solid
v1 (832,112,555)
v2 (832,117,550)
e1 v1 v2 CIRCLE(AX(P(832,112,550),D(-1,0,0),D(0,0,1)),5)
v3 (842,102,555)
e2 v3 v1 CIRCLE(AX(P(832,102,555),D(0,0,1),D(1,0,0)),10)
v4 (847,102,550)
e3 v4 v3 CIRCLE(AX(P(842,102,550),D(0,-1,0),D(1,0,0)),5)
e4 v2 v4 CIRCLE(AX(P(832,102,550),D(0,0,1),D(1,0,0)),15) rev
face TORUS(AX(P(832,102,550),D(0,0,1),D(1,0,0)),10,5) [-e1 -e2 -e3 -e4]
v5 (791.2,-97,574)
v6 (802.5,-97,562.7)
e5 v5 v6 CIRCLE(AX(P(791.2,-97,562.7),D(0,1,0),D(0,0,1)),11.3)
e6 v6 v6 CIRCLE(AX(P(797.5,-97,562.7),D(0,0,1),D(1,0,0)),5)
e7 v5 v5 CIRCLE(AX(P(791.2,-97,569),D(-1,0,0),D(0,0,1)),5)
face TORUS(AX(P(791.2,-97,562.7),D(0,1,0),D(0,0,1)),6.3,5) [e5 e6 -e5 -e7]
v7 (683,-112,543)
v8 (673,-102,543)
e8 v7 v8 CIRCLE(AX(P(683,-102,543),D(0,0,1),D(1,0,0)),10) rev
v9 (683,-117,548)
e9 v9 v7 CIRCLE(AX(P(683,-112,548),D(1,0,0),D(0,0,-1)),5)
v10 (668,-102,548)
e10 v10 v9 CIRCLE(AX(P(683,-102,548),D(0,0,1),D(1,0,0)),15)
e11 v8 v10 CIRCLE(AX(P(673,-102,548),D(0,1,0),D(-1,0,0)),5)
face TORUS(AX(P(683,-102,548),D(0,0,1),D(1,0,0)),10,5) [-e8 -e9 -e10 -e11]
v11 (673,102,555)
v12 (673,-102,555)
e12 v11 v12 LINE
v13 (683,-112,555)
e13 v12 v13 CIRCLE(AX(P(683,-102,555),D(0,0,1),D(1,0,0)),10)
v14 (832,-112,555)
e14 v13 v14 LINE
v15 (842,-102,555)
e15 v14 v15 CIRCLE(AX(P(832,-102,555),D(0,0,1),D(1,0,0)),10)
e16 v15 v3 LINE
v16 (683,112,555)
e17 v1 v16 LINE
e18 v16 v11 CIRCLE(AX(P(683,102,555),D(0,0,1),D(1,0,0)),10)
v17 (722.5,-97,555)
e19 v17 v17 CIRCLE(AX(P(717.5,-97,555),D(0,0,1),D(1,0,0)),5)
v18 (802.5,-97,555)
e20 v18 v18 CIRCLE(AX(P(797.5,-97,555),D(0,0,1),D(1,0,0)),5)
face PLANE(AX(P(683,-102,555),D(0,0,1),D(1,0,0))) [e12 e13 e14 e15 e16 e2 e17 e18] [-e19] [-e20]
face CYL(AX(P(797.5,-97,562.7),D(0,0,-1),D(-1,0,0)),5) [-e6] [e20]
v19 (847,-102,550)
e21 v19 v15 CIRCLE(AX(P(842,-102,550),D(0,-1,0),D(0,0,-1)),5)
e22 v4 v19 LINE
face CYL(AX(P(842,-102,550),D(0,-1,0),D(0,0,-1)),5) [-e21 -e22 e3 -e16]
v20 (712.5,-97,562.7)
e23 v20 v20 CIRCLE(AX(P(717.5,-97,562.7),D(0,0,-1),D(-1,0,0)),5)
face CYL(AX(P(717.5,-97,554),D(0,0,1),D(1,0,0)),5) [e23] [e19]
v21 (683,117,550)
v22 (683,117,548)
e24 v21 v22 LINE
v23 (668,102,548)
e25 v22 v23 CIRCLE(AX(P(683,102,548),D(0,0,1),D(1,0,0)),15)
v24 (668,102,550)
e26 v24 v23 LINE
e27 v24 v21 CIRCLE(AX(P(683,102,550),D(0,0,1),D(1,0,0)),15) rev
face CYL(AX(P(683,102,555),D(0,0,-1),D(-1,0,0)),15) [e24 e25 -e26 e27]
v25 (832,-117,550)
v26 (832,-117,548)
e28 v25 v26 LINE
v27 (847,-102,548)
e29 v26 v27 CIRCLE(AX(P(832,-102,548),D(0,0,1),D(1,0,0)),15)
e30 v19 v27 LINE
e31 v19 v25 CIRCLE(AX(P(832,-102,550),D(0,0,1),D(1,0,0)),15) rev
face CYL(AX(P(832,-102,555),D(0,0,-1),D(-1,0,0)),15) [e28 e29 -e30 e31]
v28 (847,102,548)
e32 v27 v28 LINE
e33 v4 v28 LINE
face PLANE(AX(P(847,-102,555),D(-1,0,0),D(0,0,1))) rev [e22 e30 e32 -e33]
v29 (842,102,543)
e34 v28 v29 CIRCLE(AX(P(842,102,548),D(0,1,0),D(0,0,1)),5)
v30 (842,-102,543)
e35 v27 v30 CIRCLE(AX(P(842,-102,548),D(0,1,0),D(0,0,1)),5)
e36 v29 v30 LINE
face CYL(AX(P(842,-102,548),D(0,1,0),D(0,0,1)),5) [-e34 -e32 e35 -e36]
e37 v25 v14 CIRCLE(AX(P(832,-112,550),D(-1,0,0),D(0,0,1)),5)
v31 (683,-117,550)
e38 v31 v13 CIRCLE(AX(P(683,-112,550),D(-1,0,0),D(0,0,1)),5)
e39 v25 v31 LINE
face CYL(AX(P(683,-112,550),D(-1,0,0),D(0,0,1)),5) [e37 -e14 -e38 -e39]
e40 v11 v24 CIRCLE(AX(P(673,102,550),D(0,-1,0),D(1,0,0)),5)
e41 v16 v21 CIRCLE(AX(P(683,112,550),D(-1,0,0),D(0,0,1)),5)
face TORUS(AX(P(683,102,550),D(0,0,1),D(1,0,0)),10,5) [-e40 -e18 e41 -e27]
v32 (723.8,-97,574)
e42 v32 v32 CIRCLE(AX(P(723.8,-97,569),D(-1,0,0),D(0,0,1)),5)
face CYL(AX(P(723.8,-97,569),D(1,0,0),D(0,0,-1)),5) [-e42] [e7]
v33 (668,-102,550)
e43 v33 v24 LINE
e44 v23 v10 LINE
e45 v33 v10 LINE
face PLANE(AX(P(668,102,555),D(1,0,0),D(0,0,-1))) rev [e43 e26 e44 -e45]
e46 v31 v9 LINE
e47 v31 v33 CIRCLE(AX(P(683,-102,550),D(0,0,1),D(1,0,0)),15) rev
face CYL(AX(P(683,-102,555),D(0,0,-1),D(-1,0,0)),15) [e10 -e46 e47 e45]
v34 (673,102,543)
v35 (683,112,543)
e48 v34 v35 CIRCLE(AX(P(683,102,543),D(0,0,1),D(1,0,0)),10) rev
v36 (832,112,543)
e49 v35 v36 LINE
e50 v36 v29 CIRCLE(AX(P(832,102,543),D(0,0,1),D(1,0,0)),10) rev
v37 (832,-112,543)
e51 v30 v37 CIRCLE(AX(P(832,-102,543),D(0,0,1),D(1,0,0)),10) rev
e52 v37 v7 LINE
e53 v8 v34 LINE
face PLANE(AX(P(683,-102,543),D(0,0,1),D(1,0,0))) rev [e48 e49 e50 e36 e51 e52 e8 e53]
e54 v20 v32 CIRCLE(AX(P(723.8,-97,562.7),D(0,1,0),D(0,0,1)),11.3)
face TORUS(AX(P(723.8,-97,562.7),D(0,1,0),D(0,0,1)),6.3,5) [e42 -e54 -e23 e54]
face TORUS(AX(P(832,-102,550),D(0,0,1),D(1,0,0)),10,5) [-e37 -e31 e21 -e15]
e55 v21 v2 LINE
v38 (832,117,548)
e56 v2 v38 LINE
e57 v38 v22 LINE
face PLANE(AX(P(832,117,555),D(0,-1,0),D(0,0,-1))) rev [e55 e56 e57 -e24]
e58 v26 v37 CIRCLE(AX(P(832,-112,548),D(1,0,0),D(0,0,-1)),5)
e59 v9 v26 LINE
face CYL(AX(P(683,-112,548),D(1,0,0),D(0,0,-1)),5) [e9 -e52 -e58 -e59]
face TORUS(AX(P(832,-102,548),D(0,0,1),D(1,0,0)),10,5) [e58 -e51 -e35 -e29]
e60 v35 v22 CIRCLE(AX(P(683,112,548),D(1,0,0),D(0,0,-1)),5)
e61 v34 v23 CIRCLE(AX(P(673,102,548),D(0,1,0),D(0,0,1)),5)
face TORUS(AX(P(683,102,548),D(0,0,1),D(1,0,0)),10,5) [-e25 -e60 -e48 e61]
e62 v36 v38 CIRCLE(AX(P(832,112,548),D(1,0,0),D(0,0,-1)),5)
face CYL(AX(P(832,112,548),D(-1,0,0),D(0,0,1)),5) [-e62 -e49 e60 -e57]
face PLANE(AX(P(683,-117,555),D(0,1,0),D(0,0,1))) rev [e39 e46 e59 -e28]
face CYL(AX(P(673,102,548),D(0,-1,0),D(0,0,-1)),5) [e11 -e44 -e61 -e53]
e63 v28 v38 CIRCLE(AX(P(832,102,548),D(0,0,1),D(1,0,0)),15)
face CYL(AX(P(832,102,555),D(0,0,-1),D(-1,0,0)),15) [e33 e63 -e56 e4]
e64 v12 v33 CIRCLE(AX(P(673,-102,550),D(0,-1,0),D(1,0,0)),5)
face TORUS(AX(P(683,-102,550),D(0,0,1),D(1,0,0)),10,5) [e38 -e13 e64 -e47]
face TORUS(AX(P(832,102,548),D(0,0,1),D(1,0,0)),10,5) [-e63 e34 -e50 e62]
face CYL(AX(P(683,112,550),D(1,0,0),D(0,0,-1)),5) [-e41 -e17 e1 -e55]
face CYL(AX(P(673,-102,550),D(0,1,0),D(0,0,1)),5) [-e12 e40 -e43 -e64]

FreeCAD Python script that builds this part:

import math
import FreeCAD as App
import Part
import Sketcher
from FreeCAD import Vector


def edges_at(feature, points):
    """Names of the edges that pass closest to the given points."""
    edges = feature.Shape.Edges
    near = lambda p: min(range(len(edges)), key=lambda i: edges[i].distToShape(Part.Vertex(*p))[0])
    return sorted({f"Edge{near(p) + 1}" for p in points})

doc = App.newDocument("Part")
body = doc.addObject("PartDesign::Body", "Body")

# Sketch on XY plane
sketch1 = body.newObject("Sketcher::SketchObject", "Sketch")
sketch1.AttachmentSupport = (doc.getObject("XY_Plane"), [""])
sketch1.MapMode = "FlatFace"
sketch1.AttachmentOffset = App.Placement(Vector(0, 0, 543), App.Rotation())
sketch1.addGeometry(Part.LineSegment(Vector(683, -117, 0), Vector(832, -117, 0)), False)
sketch1.addGeometry(Part.ArcOfCircle(Part.Circle(Vector(832, -102, 0), Vector(0, 0, 1), 15), math.radians(-90), math.radians(0)), False)
sketch1.addGeometry(Part.LineSegment(Vector(847, -102, 0), Vector(847, 102, 0)), False)
sketch1.addGeometry(Part.ArcOfCircle(Part.Circle(Vector(832, 102, 0), Vector(0, 0, 1), 15), math.radians(0), math.radians(90)), False)
sketch1.addGeometry(Part.LineSegment(Vector(832, 117, 0), Vector(683, 117, 0)), False)
sketch1.addGeometry(Part.ArcOfCircle(Part.Circle(Vector(683, 102, 0), Vector(0, 0, 1), 15), math.radians(90), math.radians(180)), False)
sketch1.addGeometry(Part.LineSegment(Vector(668, 102, 0), Vector(668, -102, 0)), False)
sketch1.addGeometry(Part.ArcOfCircle(Part.Circle(Vector(683, -102, 0), Vector(0, 0, 1), 15), math.radians(180), math.radians(270)), False)
sketch1.addConstraint(Sketcher.Constraint("Tangent", 0, 2, 1, 1))
sketch1.addConstraint(Sketcher.Constraint("Tangent", 1, 2, 2, 1))
sketch1.addConstraint(Sketcher.Constraint("Tangent", 2, 2, 3, 1))
sketch1.addConstraint(Sketcher.Constraint("Tangent", 3, 2, 4, 1))
sketch1.addConstraint(Sketcher.Constraint("Tangent", 4, 2, 5, 1))
sketch1.addConstraint(Sketcher.Constraint("Tangent", 5, 2, 6, 1))
sketch1.addConstraint(Sketcher.Constraint("Tangent", 6, 2, 7, 1))
sketch1.addConstraint(Sketcher.Constraint("Tangent", 7, 2, 0, 1))
sketch1.addConstraint(Sketcher.Constraint("Horizontal", 0))
sketch1.addConstraint(Sketcher.Constraint("Vertical", 2))
sketch1.addConstraint(Sketcher.Constraint("Horizontal", 4))
sketch1.addConstraint(Sketcher.Constraint("Vertical", 6))
sketch1.addConstraint(Sketcher.Constraint("Equal", 1, 3))
sketch1.addConstraint(Sketcher.Constraint("Equal", 3, 5))
sketch1.addConstraint(Sketcher.Constraint("Equal", 5, 7))
sketch1.addConstraint(Sketcher.Constraint("Radius", 1, 15.0))
sketch1.addConstraint(Sketcher.Constraint("DistanceX", 0, 1, 0, 2, 149.0))
sketch1.addConstraint(Sketcher.Constraint("DistanceY", 2, 1, 2, 2, 204.0))
sketch1.addConstraint(Sketcher.Constraint("DistanceX", -1, 1, 1, 3, 832.0))
sketch1.addConstraint(Sketcher.Constraint("DistanceY", 1, 3, -1, 1, 102.0))
pad1 = body.newObject("PartDesign::Pad", "Pad")
pad1.Profile = sketch1
pad1.Length = 12
doc.recompute()

fillet = body.newObject("PartDesign::Fillet", "Fillet")
fillet.Base = (pad1, edges_at(pad1, [
    (847, 0, 543),
    (842.607, -112.607, 543),
    (757.5, -117, 543),
    (672.393, -112.607, 543),
    (842.607, -112.607, 555),
    (847, 0, 555),
    (842.607, 112.607, 555),
    (757.5, 117, 555),
    (672.393, 112.607, 555),
    (668, 0, 555),
    (672.393, -112.607, 555),
    (668, 0, 543),
    (757.5, -117, 555),
    (672.393, 112.607, 543),
    (757.5, 117, 543),
    (842.607, 112.607, 543),
]))
fillet.Radius = 5
body2 = doc.addObject("PartDesign::Body", "Body001")

# Sketch on XY plane
sketch2 = body2.newObject("Sketcher::SketchObject", "Sketch001")
sketch2.AttachmentSupport = (doc.getObject("XY_Plane001"), [""])
sketch2.MapMode = "FlatFace"
sketch2.AttachmentOffset = App.Placement(Vector(0, 0, 555), App.Rotation())
sketch2.addGeometry(Part.Circle(Vector(718, -97, 0), Vector(0, 0, 1), 5), False)
sketch2.addConstraint(Sketcher.Constraint("Diameter", 0, 10.0))
sketch2.addConstraint(Sketcher.Constraint("DistanceY", 0, 3, -1, 1, 97.0))
sketch2.addConstraint(Sketcher.Constraint("DistanceX", -1, 1, 0, 3, 717.5))

# Sketch on XZ plane
sketch3 = body2.newObject("Sketcher::SketchObject", "Sketch002")
sketch3.AttachmentSupport = (doc.getObject("XZ_Plane001"), [""])
sketch3.MapMode = "FlatFace"
sketch3.AttachmentOffset = App.Placement(Vector(0, 0, 97), App.Rotation())
sketch3.addGeometry(Part.LineSegment(Vector(718, 555, 0), Vector(718, 563, 0)), False)
sketch3.addGeometry(Part.ArcOfCircle(Part.Circle(Vector(724, 563, 0), Vector(0, 0, 1), 6), math.radians(90), math.radians(180)), False)
sketch3.addGeometry(Part.LineSegment(Vector(724, 569, 0), Vector(791, 569, 0)), False)
sketch3.addGeometry(Part.ArcOfCircle(Part.Circle(Vector(791, 563, 0), Vector(0, 0, 1), 6), math.radians(0), math.radians(90)), False)
sketch3.addGeometry(Part.LineSegment(Vector(798, 563, 0), Vector(798, 555, 0)), False)
sketch3.addConstraint(Sketcher.Constraint("Tangent", 0, 2, 1, 2))
sketch3.addConstraint(Sketcher.Constraint("Tangent", 1, 1, 2, 1))
sketch3.addConstraint(Sketcher.Constraint("Tangent", 2, 2, 3, 2))
sketch3.addConstraint(Sketcher.Constraint("Tangent", 3, 1, 4, 1))
sketch3.addConstraint(Sketcher.Constraint("Vertical", 0))
sketch3.addConstraint(Sketcher.Constraint("Horizontal", 2))
sketch3.addConstraint(Sketcher.Constraint("Vertical", 4))
sketch3.addConstraint(Sketcher.Constraint("Equal", 1, 3))
sketch3.addConstraint(Sketcher.Constraint("Horizontal", 0, 1, 4, 2))
sketch3.addConstraint(Sketcher.Constraint("Radius", 1, 6.3))
sketch3.addConstraint(Sketcher.Constraint("DistanceX", 2, 1, 2, 2, 67.4))
sketch3.addConstraint(Sketcher.Constraint("DistanceY", 0, 1, 0, 2, 7.7))
sketch3.addConstraint(Sketcher.Constraint("DistanceY", -1, 1, 0, 1, 555.0))
sketch3.addConstraint(Sketcher.Constraint("DistanceX", -1, 1, 1, 3, 723.8))
doc.recompute()

additivepipe = body2.newObject("PartDesign::AdditivePipe", "AdditivePipe")
additivepipe.Profile = sketch2
additivepipe.Spine = (sketch3, ["Edge1", "Edge2", "Edge3", "Edge4", "Edge5"])
doc.recompute()

boolean = body2.newObject("PartDesign::Boolean", "Boolean")
boolean.Type = "Fuse"
boolean.addObjects([body])

doc.recompute()
